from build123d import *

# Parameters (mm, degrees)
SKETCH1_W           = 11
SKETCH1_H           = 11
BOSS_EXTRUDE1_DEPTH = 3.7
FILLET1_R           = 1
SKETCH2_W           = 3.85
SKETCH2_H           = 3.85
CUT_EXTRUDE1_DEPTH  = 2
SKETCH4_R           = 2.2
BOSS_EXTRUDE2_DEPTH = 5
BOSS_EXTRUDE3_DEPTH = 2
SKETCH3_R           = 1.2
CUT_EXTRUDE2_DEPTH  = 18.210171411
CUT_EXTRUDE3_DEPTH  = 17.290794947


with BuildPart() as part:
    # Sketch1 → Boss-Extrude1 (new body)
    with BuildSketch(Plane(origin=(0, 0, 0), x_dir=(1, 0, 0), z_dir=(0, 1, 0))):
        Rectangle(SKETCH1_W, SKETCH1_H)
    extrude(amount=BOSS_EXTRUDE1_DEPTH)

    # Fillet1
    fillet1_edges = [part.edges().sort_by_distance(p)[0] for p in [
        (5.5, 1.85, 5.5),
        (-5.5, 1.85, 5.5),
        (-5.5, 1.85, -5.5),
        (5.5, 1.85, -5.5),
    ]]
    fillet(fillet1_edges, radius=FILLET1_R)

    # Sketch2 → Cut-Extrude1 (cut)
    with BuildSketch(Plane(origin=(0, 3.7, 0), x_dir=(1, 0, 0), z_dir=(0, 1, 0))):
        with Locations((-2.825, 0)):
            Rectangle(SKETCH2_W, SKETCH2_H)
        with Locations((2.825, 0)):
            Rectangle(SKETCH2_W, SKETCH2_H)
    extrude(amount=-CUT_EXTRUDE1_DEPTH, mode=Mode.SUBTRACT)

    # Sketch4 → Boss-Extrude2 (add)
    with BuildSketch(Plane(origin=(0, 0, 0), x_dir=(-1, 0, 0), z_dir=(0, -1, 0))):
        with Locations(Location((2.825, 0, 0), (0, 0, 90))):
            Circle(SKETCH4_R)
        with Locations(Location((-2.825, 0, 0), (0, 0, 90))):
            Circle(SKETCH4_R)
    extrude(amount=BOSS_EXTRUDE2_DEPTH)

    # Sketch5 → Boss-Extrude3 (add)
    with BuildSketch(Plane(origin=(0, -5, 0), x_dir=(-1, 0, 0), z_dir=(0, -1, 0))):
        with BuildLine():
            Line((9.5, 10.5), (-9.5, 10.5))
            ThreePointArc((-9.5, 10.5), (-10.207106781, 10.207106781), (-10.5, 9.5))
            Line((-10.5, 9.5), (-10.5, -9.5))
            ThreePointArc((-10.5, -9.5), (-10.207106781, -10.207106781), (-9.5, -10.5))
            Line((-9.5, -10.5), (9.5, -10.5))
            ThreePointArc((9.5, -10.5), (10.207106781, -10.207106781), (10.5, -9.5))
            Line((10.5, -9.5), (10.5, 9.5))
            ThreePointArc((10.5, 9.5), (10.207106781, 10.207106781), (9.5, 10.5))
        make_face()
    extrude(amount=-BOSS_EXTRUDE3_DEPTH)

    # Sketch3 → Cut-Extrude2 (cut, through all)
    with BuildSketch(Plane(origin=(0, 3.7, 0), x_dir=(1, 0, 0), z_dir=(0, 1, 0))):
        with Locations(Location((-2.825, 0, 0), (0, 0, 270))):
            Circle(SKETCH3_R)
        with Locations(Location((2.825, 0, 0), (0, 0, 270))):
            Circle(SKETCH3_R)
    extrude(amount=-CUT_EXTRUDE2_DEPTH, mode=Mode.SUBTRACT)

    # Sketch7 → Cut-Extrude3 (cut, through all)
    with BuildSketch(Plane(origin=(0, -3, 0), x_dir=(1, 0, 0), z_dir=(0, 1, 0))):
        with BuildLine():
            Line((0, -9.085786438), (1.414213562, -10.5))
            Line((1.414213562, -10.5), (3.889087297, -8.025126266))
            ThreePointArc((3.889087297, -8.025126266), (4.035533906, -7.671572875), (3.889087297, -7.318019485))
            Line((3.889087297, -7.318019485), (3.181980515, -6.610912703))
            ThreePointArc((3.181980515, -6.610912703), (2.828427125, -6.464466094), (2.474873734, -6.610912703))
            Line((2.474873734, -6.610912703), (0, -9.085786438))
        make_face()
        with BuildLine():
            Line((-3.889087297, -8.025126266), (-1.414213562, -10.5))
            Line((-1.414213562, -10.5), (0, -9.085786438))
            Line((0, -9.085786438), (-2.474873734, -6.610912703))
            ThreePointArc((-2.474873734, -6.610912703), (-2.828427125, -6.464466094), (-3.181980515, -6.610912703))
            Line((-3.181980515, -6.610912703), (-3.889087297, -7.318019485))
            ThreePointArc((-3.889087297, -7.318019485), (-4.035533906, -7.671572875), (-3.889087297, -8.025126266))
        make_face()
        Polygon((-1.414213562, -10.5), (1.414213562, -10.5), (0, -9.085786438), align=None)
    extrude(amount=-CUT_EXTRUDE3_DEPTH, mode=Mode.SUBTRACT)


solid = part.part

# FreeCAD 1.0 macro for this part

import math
import FreeCAD as App
import Part
import Sketcher

V = App.Vector
Q = App.Units.Quantity


def edges_at(feature, points):
    """Names of the edges that pass closest to the given points."""
    edges = feature.Shape.Edges
    near = lambda p: min(range(len(edges)), key=lambda i: edges[i].distToShape(Part.Vertex(*p))[0])
    return sorted({f"Edge{near(p) + 1}" for p in points})

doc = App.newDocument("Part")
body = doc.addObject("PartDesign::Body", "Body")

# Sketch on XZ plane
sketch1 = body.newObject("Sketcher::SketchObject", "Sketch")
sketch1.AttachmentSupport = (doc.getObject("XZ_Plane"), [""])
sketch1.MapMode = "FlatFace"
sketch1.addGeometry([
    Part.LineSegment(V(-5.5, -5.5, 0), V(-5.5, 5.5, 0)),
    Part.LineSegment(V(-5.5, 5.5, 0), V(5.5, 5.5, 0)),
    Part.LineSegment(V(5.5, 5.5, 0), V(5.5, -5.5, 0)),
    Part.LineSegment(V(5.5, -5.5, 0), V(-5.5, -5.5, 0)),
], False)
sketch1.addConstraint([
    Sketcher.Constraint("Coincident", 0, 2, 1, 1),
    Sketcher.Constraint("Coincident", 1, 2, 2, 1),
    Sketcher.Constraint("Coincident", 2, 2, 3, 1),
    Sketcher.Constraint("Coincident", 3, 2, 0, 1),
    Sketcher.Constraint("Vertical", 0),
    Sketcher.Constraint("Horizontal", 1),
    Sketcher.Constraint("Vertical", 2),
    Sketcher.Constraint("Horizontal", 3),
    Sketcher.Constraint("Symmetric", 0, 2, 2, 2, -1, 1),
    Sketcher.Constraint("Equal", 3, 0),
    Sketcher.Constraint("DistanceX", 1, 1, 1, 2, Q("11 mm")),
])
pad1 = body.newObject("PartDesign::Pad", "Pad")
pad1.Profile = sketch1
pad1.Length = 3.7
pad1.Reversed = True
doc.recompute()

fillet = body.newObject("PartDesign::Fillet", "Fillet")
fillet.Base = (pad1, edges_at(pad1, [
    (5.5, 1.85, 5.5),
    (-5.5, 1.85, 5.5),
    (-5.5, 1.85, -5.5),
    (5.5, 1.85, -5.5),
]))
fillet.Radius = 1

# Sketch on XZ plane
sketch2 = body.newObject("Sketcher::SketchObject", "Sketch001")
sketch2.AttachmentSupport = (doc.getObject("XZ_Plane"), [""])
sketch2.MapMode = "FlatFace"
sketch2.AttachmentOffset = App.Placement(V(0, 0, -3.7), App.Rotation())
sketch2.addGeometry([
    Part.LineSegment(V(-4.75, -1.925, 0), V(-4.75, 1.925, 0)),  # 0
    Part.LineSegment(V(-4.75, 1.925, 0), V(-0.9, 1.925, 0)),  # 1
    Part.LineSegment(V(-0.9, 1.925, 0), V(-0.9, -1.925, 0)),  # 2
    Part.LineSegment(V(-0.9, -1.925, 0), V(-4.75, -1.925, 0)),  # 3
    Part.LineSegment(V(0.9, -1.925, 0), V(0.9, 1.925, 0)),  # 4
    Part.LineSegment(V(0.9, 1.925, 0), V(4.75, 1.925, 0)),  # 5
    Part.LineSegment(V(4.75, 1.925, 0), V(4.75, -1.925, 0)),  # 6
    Part.LineSegment(V(4.75, -1.925, 0), V(0.9, -1.925, 0)),  # 7
], False)
sketch2.addConstraint([
    Sketcher.Constraint("Coincident", 0, 2, 1, 1),
    Sketcher.Constraint("Coincident", 1, 2, 2, 1),
    Sketcher.Constraint("Coincident", 2, 2, 3, 1),
    Sketcher.Constraint("Coincident", 3, 2, 0, 1),
    Sketcher.Constraint("Coincident", 4, 2, 5, 1),
    Sketcher.Constraint("Coincident", 5, 2, 6, 1),
    Sketcher.Constraint("Coincident", 6, 2, 7, 1),
    Sketcher.Constraint("Coincident", 7, 2, 4, 1),
    Sketcher.Constraint("Vertical", 0),
    Sketcher.Constraint("Horizontal", 1),
    Sketcher.Constraint("Vertical", 2),
    Sketcher.Constraint("Horizontal", 3),
    Sketcher.Constraint("Vertical", 4),
    Sketcher.Constraint("Horizontal", 5),
    Sketcher.Constraint("Vertical", 6),
    Sketcher.Constraint("Horizontal", 7),
    Sketcher.Constraint("Symmetric", 2, 2, 4, 2, -1, 1),
    Sketcher.Constraint("Symmetric", 0, 2, 6, 2, -1, 1),
    Sketcher.Constraint("Horizontal", 1, 2, 4, 2),
    Sketcher.Constraint("Equal", 7, 0),
    Sketcher.Constraint("DistanceX", 1, 1, 1, 2, Q("3.85 mm")),
    Sketcher.Constraint("DistanceX", 1, 2, -1, 1, Q("0.9 mm")),
])
pocket1 = body.newObject("PartDesign::Pocket", "Pocket")
pocket1.Profile = sketch2
pocket1.Length = 2
pocket1.Reversed = True

# Sketch on XZ plane
sketch3 = body.newObject("Sketcher::SketchObject", "Sketch002")
sketch3.AttachmentSupport = (doc.getObject("XZ_Plane"), [""])
sketch3.MapMode = "FlatFace"
sketch3.addGeometry([
    Part.Circle(V(-2.825, 0, 0), V(0, 0, 1), 2.2),
    Part.Circle(V(2.825, 0, 0), V(0, 0, 1), 2.2),
], False)
sketch3.addConstraint([
    Sketcher.Constraint("Equal", 0, 1),
    Sketcher.Constraint("Symmetric", 0, 3, 1, 3, -1, 1),
    Sketcher.Constraint("PointOnObject", 0, 3, -1),
    Sketcher.Constraint("Diameter", 0, Q("4.4 mm")),
    Sketcher.Constraint("DistanceX", 0, 3, 1, 3, Q("5.65 mm")),
])
pad2 = body.newObject("PartDesign::Pad", "Pad001")
pad2.Profile = sketch3
pad2.Length = 5

# Sketch on XZ plane
sketch4 = body.newObject("Sketcher::SketchObject", "Sketch003")
sketch4.AttachmentSupport = (doc.getObject("XZ_Plane"), [""])
sketch4.MapMode = "FlatFace"
sketch4.AttachmentOffset = App.Placement(V(0, 0, 5), App.Rotation())
sketch4.addGeometry([
    Part.LineSegment(V(-9.5, -10.5, 0), V(9.5, -10.5, 0)),  # 0
    Part.ArcOfCircle(Part.Circle(V(9.5, -9.5, 0), V(0, 0, 1), 1), math.radians(-90), math.radians(0)),  # 1
    Part.LineSegment(V(10.5, -9.5, 0), V(10.5, 9.5, 0)),  # 2
    Part.ArcOfCircle(Part.Circle(V(9.5, 9.5, 0), V(0, 0, 1), 1), math.radians(0), math.radians(90)),  # 3
    Part.LineSegment(V(9.5, 10.5, 0), V(-9.5, 10.5, 0)),  # 4
    Part.ArcOfCircle(Part.Circle(V(-9.5, 9.5, 0), V(0, 0, 1), 1), math.radians(90), math.radians(180)),  # 5
    Part.LineSegment(V(-10.5, 9.5, 0), V(-10.5, -9.5, 0)),  # 6
    Part.ArcOfCircle(Part.Circle(V(-9.5, -9.5, 0), V(0, 0, 1), 1), math.radians(-180), math.radians(-90)),  # 7
], False)
sketch4.addConstraint([
    Sketcher.Constraint("Tangent", 0, 2, 1, 1),
    Sketcher.Constraint("Tangent", 1, 2, 2, 1),
    Sketcher.Constraint("Tangent", 2, 2, 3, 1),
    Sketcher.Constraint("Tangent", 3, 2, 4, 1),
    Sketcher.Constraint("Tangent", 4, 2, 5, 1),
    Sketcher.Constraint("Tangent", 5, 2, 6, 1),
    Sketcher.Constraint("Tangent", 6, 2, 7, 1),
    Sketcher.Constraint("Tangent", 7, 2, 0, 1),
    Sketcher.Constraint("Horizontal", 0),
    Sketcher.Constraint("Vertical", 2),
    Sketcher.Constraint("Horizontal", 4),
    Sketcher.Constraint("Vertical", 6),
    Sketcher.Constraint("Equal", 1, 3),
    Sketcher.Constraint("Equal", 3, 5),
    Sketcher.Constraint("Equal", 5, 7),
    Sketcher.Constraint("Symmetric", 1, 3, 5, 3, -1, 1),
    Sketcher.Constraint("Equal", 4, 2),
    Sketcher.Constraint("Radius", 1, Q("1 mm")),
    Sketcher.Constraint("DistanceX", 0, 1, 0, 2, Q("19 mm")),
])
pad3 = body.newObject("PartDesign::Pad", "Pad002")
pad3.Profile = sketch4
pad3.Length = 2
pad3.Reversed = True

# Sketch on XZ plane
sketch5 = body.newObject("Sketcher::SketchObject", "Sketch004")
sketch5.AttachmentSupport = (doc.getObject("XZ_Plane"), [""])
sketch5.MapMode = "FlatFace"
sketch5.AttachmentOffset = App.Placement(V(0, 0, -3.7), App.Rotation())
sketch5.addGeometry([
    Part.Circle(V(-2.825, 0, 0), V(0, 0, 1), 1.2),
    Part.Circle(V(2.825, 0, 0), V(0, 0, 1), 1.2),
], False)
sketch5.addConstraint([
    Sketcher.Constraint("Equal", 0, 1),
    Sketcher.Constraint("Symmetric", 0, 3, 1, 3, -1, 1),
    Sketcher.Constraint("PointOnObject", 0, 3, -1),
    Sketcher.Constraint("Diameter", 0, Q("2.4 mm")),
    Sketcher.Constraint("DistanceX", 0, 3, 1, 3, Q("5.65 mm")),
])
pocket2 = body.newObject("PartDesign::Pocket", "Pocket001")
pocket2.Profile = sketch5
pocket2.Type = "ThroughAll"
pocket2.Reversed = True

# Sketch on XZ plane
sketch6 = body.newObject("Sketcher::SketchObject", "Sketch005")
sketch6.AttachmentSupport = (doc.getObject("XZ_Plane"), [""])
sketch6.MapMode = "FlatFace"
sketch6.AttachmentOffset = App.Placement(V(0, 0, 3), App.Rotation())
sketch6.addGeometry([
    Part.LineSegment(V(1.414214, 10.5, 0), V(3.889087, 8.025126, 0)),  # 0
    Part.ArcOfCircle(Part.Circle(V(3.535534, 7.671573, 0), V(0, 0, 1), 0.5), math.radians(-45), math.radians(45)),  # 1
    Part.LineSegment(V(3.889087, 7.318019, 0), V(3.181981, 6.610913, 0)),  # 2
    Part.ArcOfCircle(Part.Circle(V(2.828427, 6.964466, 0), V(0, 0, 1), 0.5), math.radians(-135), math.radians(-45)),  # 3
    Part.LineSegment(V(2.474874, 6.610913, 0), V(0, 9.085786, 0)),  # 4
    Part.LineSegment(V(0, 9.085786, 0), V(-2.474874, 6.610913, 0)),  # 5
    Part.ArcOfCircle(Part.Circle(V(-2.828427, 6.964466, 0), V(0, 0, 1), 0.5), math.radians(-135), math.radians(-45)),  # 6
    Part.LineSegment(V(-3.181981, 6.610913, 0), V(-3.889087, 7.318019, 0)),  # 7
    Part.ArcOfCircle(Part.Circle(V(-3.535534, 7.671573, 0), V(0, 0, 1), 0.5), math.radians(135), math.radians(225)),  # 8
    Part.LineSegment(V(-3.889087, 8.025126, 0), V(-1.414214, 10.5, 0)),  # 9
    Part.LineSegment(V(-1.414214, 10.5, 0), V(1.414214, 10.5, 0)),  # 10
], False)
sketch6.addConstraint([
    Sketcher.Constraint("Tangent", 0, 2, 1, 2),
    Sketcher.Constraint("Tangent", 1, 1, 2, 1),
    Sketcher.Constraint("Tangent", 2, 2, 3, 2),
    Sketcher.Constraint("Tangent", 3, 1, 4, 1),
    Sketcher.Constraint("Coincident", 4, 2, 5, 1),
    Sketcher.Constraint("Tangent", 5, 2, 6, 2),
    Sketcher.Constraint("Tangent", 6, 1, 7, 1),
    Sketcher.Constraint("Tangent", 7, 2, 8, 2),
    Sketcher.Constraint("Tangent", 8, 1, 9, 1),
    Sketcher.Constraint("Coincident", 9, 2, 10, 1),
    Sketcher.Constraint("Coincident", 10, 2, 0, 1),
    Sketcher.Constraint("Horizontal", 10),
    Sketcher.Constraint("Equal", 1, 3),
    Sketcher.Constraint("Equal", 3, 6),
    Sketcher.Constraint("Equal", 6, 8),
    Sketcher.Constraint("Symmetric", 3, 3, 6, 3, -2),
    Sketcher.Constraint("Symmetric", 1, 3, 8, 3, -2),
    Sketcher.Constraint("PointOnObject", 4, 2, -2),
    Sketcher.Constraint("Perpendicular", 0, 2),
    Sketcher.Constraint("Perpendicular", 2, 4),
    Sketcher.Constraint("Perpendicular", 4, 5),
    Sketcher.Constraint("Perpendicular", 7, 9),
    Sketcher.Constraint("Equal", 0, 4),
    Sketcher.Constraint("Radius", 1, Q("0.5 mm")),
    Sketcher.Constraint("Distance", 2, Q("1 mm")),
    Sketcher.Constraint("Distance", 0, Q("3.5 mm")),
    Sketcher.Constraint("DistanceY", -1, 1, 9, 2, Q("10.5 mm")),
])
pocket3 = body.newObject("PartDesign::Pocket", "Pocket002")
pocket3.Profile = sketch6
pocket3.Type = "ThroughAll"
pocket3.Reversed = True

doc.recompute()
